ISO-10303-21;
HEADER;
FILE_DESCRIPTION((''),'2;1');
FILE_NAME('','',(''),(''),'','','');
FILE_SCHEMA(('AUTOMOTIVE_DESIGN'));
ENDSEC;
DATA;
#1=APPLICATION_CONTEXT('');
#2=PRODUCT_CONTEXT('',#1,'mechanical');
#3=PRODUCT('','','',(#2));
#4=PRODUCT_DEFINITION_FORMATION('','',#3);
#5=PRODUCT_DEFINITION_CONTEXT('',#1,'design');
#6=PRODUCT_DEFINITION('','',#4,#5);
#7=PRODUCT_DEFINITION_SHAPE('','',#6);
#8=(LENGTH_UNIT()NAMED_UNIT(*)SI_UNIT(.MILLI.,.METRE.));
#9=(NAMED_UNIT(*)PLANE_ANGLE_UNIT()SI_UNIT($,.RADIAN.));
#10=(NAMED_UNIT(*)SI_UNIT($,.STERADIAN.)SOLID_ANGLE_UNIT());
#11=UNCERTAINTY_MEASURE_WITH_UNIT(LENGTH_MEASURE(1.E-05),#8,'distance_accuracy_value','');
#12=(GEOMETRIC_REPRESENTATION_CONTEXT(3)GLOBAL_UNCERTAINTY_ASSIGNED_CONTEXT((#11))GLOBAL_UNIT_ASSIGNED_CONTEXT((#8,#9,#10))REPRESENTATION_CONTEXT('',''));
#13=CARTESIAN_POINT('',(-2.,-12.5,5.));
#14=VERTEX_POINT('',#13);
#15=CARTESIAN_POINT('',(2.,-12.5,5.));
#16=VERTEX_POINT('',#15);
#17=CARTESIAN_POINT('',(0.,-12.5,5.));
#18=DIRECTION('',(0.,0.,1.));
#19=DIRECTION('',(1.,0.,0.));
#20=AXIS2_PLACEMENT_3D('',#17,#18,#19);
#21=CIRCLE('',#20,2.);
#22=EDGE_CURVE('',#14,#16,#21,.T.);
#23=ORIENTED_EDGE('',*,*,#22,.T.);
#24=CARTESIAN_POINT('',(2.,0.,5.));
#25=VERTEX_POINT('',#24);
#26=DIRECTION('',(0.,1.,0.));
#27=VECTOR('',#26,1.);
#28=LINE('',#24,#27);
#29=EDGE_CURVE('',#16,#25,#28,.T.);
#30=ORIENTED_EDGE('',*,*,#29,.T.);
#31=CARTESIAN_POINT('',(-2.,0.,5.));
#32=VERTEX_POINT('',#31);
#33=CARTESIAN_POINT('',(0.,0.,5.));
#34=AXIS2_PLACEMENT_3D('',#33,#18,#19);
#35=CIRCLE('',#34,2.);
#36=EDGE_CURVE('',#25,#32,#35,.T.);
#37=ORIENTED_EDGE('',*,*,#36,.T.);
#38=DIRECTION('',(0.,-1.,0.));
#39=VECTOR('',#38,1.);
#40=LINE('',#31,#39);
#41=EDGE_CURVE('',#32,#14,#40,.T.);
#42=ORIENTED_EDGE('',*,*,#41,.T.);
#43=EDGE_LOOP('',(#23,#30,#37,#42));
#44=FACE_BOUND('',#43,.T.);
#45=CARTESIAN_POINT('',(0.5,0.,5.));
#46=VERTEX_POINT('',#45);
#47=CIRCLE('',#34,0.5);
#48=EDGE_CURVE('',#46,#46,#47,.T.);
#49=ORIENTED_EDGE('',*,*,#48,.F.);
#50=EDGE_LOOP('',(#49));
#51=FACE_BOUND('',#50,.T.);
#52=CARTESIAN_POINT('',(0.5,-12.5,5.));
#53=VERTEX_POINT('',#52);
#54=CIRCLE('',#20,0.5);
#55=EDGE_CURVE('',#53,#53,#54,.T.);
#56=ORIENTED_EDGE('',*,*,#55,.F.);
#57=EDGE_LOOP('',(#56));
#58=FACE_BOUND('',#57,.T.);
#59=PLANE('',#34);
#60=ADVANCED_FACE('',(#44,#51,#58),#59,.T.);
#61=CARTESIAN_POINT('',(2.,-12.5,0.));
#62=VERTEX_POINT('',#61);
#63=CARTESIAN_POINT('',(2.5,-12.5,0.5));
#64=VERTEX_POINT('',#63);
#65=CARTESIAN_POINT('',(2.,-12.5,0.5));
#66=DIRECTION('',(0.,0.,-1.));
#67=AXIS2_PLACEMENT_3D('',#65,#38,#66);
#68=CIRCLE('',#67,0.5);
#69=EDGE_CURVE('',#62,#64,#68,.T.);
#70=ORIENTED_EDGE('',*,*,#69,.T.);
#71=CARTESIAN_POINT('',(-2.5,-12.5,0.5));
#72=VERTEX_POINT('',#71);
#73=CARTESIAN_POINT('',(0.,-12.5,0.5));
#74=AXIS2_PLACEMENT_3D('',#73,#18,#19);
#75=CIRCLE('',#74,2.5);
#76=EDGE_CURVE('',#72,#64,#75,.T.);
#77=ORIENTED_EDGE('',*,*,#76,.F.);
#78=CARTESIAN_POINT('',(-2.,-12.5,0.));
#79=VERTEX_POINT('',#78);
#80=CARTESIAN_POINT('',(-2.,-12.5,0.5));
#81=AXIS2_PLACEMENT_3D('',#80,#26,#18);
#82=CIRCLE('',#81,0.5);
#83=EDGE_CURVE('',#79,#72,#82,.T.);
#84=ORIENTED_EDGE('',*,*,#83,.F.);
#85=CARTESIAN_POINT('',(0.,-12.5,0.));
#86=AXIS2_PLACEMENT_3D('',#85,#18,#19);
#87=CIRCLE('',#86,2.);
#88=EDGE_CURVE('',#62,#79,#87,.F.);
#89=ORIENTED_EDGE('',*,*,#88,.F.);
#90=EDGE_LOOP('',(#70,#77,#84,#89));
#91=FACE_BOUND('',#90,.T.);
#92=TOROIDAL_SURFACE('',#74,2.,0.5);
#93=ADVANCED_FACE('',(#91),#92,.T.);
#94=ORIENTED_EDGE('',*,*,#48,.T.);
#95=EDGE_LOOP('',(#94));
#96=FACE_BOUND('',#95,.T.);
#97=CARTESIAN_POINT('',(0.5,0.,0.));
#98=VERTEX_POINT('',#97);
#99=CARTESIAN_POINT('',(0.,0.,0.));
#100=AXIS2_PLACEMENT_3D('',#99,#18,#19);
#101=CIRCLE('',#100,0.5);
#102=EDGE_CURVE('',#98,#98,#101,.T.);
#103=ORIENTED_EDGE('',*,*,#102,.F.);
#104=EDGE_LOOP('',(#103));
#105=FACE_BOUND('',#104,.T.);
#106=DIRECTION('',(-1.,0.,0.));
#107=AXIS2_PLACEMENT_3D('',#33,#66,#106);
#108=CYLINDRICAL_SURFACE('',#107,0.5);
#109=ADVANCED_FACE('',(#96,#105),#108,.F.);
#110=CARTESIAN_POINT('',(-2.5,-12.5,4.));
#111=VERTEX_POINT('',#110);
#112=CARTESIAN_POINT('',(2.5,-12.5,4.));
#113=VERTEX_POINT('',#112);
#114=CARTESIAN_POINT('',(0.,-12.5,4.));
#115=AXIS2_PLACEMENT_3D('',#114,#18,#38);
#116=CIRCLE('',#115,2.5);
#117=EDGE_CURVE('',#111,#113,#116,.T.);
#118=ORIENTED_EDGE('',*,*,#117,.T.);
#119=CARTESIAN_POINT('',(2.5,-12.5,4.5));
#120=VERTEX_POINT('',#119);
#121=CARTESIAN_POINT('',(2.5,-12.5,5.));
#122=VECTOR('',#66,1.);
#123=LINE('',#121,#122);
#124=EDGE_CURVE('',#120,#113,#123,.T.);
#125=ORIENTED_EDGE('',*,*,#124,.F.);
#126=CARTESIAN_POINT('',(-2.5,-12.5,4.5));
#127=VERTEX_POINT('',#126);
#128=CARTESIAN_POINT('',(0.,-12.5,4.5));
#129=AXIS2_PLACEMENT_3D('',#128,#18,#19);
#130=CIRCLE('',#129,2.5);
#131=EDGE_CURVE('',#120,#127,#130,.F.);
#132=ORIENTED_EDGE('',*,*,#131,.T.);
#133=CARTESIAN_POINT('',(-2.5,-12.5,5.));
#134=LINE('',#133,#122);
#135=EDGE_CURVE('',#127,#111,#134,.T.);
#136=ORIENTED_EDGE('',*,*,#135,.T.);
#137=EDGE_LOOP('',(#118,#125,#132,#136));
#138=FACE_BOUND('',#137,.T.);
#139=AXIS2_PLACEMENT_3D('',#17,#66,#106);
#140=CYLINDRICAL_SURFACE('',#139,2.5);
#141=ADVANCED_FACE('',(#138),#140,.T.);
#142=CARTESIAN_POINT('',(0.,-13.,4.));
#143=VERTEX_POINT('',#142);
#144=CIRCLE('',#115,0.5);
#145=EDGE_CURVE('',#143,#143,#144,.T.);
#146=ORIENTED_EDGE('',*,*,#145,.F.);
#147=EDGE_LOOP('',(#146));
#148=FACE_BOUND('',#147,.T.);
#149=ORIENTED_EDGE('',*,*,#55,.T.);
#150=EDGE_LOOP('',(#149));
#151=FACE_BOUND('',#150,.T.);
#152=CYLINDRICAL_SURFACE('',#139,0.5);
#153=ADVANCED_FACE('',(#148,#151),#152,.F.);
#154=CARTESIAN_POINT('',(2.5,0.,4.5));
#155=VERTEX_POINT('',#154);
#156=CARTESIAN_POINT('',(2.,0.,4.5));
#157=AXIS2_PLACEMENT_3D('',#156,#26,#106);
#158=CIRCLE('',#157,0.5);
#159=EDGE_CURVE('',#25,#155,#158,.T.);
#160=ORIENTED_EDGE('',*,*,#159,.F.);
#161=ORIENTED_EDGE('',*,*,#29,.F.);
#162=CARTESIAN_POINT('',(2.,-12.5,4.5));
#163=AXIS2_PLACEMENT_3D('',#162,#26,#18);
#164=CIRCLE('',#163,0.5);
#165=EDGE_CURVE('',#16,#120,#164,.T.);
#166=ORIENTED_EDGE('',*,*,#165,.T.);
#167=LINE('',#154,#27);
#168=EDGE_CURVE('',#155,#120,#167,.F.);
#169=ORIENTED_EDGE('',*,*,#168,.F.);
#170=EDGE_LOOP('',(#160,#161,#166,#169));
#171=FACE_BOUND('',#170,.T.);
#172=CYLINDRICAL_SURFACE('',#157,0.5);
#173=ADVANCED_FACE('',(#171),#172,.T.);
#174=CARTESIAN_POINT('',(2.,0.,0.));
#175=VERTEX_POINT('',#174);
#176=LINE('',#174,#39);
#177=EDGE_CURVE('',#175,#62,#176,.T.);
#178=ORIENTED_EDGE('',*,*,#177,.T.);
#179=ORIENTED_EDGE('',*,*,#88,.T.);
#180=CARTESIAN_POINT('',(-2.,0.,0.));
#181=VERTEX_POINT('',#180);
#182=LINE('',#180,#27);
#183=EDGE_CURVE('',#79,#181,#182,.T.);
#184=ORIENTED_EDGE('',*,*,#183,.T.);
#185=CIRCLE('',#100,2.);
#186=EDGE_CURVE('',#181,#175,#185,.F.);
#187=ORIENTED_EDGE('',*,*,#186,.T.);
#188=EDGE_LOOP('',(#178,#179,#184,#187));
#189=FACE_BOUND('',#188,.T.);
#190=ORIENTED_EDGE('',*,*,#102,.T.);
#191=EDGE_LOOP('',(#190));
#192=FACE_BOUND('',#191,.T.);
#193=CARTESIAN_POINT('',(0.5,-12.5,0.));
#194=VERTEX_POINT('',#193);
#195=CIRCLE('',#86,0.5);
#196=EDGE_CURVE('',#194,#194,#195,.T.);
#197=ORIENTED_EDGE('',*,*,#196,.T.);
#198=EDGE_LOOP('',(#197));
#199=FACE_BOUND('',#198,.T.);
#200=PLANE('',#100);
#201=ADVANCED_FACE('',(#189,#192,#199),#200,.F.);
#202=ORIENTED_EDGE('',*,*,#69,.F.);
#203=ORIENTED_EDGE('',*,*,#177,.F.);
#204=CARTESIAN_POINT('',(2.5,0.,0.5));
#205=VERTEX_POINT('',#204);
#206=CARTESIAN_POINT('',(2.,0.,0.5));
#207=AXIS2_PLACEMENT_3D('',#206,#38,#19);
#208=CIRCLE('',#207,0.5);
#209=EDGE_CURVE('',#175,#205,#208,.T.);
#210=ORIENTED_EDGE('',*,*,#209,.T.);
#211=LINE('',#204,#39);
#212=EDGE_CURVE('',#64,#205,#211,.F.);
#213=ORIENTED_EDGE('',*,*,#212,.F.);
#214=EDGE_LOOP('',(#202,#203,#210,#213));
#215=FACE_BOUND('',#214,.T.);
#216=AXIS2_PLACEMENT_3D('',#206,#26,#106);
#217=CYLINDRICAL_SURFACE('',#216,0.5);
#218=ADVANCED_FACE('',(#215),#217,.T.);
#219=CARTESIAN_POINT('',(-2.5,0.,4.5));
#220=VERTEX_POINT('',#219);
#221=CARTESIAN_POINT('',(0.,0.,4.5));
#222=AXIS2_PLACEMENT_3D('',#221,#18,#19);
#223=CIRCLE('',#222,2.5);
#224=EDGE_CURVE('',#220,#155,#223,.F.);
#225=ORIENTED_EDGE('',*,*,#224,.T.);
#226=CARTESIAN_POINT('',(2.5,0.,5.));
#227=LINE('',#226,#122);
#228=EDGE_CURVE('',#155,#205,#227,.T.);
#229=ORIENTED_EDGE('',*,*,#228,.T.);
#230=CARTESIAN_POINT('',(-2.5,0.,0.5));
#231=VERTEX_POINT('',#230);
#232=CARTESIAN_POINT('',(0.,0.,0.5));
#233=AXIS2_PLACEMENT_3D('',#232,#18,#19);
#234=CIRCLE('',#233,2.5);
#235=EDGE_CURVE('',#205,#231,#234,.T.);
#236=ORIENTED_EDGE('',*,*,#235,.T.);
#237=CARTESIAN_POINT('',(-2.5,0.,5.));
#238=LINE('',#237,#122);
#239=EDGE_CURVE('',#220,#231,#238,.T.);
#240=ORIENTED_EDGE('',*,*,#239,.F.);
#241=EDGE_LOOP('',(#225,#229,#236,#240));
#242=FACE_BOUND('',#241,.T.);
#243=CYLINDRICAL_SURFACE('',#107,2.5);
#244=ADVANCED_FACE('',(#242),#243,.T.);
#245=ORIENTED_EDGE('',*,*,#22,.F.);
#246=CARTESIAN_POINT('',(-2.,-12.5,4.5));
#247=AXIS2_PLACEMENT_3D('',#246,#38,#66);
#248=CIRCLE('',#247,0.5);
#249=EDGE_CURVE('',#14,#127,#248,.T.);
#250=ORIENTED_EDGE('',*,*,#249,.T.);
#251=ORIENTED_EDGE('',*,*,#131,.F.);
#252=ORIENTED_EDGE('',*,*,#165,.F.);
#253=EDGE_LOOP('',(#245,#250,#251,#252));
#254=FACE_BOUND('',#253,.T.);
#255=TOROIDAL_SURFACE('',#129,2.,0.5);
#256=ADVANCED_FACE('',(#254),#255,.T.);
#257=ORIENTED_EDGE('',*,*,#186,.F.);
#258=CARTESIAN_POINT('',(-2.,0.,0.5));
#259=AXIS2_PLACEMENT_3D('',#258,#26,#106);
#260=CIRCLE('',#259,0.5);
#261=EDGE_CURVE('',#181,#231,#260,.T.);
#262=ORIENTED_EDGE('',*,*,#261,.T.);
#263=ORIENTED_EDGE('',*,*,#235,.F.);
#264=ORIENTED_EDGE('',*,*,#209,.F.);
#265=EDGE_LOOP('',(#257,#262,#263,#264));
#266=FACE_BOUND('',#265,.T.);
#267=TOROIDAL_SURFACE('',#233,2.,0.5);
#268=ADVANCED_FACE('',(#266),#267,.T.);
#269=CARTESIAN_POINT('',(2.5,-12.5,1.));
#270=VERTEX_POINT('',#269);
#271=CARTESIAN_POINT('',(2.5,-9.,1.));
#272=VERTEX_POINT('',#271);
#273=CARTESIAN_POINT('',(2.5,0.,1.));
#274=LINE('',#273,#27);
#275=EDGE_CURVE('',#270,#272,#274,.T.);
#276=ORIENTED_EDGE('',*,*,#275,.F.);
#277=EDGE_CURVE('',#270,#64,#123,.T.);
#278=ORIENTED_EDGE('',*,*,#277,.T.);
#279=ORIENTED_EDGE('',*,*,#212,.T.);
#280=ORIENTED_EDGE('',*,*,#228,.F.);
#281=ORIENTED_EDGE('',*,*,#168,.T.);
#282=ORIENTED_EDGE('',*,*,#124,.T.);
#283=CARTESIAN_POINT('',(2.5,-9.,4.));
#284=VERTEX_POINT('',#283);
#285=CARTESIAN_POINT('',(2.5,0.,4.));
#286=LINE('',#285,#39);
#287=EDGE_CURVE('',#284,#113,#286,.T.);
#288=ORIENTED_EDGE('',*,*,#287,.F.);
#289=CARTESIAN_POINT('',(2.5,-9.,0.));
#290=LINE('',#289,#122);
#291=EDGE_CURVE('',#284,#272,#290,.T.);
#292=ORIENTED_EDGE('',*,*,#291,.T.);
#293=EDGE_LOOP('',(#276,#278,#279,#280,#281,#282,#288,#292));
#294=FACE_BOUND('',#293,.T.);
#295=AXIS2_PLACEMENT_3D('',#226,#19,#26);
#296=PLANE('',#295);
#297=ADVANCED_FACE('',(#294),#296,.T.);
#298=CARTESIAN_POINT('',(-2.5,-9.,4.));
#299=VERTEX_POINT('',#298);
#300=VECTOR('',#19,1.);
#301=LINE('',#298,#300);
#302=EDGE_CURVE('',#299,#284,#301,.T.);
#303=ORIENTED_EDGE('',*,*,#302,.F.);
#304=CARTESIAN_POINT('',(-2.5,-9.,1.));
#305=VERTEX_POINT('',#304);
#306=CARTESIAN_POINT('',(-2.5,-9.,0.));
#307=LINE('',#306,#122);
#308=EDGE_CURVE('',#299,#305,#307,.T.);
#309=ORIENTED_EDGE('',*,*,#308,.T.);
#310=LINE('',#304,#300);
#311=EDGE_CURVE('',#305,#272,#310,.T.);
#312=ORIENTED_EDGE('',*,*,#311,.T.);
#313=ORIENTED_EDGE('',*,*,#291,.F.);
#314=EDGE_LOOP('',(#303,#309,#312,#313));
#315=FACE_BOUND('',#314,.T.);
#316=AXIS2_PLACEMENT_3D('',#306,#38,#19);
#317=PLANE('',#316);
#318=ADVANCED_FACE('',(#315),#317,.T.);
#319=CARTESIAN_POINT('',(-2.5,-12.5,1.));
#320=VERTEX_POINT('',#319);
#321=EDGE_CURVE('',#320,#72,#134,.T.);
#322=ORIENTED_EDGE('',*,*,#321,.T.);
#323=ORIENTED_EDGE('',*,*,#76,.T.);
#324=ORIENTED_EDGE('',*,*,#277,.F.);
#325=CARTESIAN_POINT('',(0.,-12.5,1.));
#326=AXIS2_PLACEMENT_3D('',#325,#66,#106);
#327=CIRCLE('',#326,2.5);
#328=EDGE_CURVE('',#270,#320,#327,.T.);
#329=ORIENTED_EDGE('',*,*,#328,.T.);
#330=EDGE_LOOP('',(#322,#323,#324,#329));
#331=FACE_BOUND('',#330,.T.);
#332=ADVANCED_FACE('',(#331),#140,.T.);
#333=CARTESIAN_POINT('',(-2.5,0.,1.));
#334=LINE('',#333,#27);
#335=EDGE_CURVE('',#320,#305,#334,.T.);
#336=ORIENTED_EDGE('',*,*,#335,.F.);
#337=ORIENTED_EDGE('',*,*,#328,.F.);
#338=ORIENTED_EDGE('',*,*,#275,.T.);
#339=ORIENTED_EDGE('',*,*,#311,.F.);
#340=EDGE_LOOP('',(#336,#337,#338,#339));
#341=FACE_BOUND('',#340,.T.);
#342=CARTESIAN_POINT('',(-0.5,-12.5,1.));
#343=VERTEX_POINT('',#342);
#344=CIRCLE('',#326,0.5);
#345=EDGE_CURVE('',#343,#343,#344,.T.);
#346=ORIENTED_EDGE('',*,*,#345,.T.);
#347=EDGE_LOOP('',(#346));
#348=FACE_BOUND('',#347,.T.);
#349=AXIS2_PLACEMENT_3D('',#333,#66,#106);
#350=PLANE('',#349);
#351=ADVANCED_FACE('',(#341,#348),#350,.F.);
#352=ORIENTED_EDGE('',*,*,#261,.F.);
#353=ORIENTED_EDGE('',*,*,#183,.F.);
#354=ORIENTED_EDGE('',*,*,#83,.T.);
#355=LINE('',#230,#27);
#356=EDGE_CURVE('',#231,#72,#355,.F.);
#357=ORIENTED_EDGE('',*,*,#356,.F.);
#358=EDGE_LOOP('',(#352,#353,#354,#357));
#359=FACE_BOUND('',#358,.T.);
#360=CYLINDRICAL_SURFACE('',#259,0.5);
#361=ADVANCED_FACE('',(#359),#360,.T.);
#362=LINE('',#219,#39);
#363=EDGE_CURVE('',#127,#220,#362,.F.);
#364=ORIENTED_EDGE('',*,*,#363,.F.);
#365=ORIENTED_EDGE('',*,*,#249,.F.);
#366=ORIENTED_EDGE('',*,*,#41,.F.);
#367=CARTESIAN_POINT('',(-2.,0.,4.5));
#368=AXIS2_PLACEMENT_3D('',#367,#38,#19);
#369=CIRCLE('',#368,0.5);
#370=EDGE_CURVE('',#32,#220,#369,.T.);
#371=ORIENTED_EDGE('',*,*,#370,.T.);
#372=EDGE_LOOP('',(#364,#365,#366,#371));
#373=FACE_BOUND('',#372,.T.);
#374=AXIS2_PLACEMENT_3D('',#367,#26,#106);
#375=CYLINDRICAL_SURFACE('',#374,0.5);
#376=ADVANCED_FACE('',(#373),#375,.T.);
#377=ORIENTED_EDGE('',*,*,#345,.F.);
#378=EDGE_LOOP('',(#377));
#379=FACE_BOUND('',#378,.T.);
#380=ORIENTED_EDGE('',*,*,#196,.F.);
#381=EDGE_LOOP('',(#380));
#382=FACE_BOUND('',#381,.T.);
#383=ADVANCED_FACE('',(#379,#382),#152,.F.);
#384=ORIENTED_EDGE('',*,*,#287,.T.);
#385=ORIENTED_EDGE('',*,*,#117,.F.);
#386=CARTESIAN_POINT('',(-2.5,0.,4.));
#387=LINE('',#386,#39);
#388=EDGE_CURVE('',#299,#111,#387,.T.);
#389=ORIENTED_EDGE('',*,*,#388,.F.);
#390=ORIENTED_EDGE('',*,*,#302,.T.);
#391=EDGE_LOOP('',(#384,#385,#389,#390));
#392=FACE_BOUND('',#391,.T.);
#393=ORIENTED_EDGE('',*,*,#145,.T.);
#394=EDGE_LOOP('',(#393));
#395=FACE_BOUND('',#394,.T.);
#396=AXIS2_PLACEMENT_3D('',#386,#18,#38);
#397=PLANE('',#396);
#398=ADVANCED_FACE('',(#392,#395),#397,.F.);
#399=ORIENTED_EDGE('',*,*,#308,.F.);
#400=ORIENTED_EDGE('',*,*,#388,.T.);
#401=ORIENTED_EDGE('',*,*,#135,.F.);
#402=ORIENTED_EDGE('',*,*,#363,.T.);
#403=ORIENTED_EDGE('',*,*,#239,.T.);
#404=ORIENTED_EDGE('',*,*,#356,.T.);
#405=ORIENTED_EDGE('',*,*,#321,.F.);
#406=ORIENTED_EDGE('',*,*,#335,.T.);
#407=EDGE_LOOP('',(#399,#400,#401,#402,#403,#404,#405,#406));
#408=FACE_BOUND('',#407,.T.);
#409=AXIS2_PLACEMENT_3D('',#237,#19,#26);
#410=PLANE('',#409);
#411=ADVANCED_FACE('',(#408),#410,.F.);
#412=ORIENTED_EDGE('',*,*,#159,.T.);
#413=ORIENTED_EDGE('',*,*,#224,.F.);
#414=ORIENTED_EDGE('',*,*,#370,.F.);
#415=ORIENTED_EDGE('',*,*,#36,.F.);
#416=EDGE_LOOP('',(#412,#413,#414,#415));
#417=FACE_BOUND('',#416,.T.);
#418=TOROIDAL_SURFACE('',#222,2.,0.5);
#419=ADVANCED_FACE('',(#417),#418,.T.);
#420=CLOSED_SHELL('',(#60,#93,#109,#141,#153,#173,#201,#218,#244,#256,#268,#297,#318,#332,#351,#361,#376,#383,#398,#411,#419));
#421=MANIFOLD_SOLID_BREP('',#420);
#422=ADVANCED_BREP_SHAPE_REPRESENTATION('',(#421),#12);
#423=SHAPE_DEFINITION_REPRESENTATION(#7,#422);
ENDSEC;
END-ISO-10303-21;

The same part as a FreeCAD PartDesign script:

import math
import FreeCAD as App
import Part
import Sketcher
from FreeCAD import Vector


def edges_at(feature, points):
    """Names of the edges that pass closest to the given points."""
    edges = feature.Shape.Edges
    near = lambda p: min(range(len(edges)), key=lambda i: edges[i].distToShape(Part.Vertex(*p))[0])
    return sorted({f"Edge{near(p) + 1}" for p in points})

doc = App.newDocument("Part")
body = doc.addObject("PartDesign::Body", "Body")

sketch1 = body.newObject("Sketcher::SketchObject", "Sketch")
sketch1.AttachmentSupport = (doc.getObject("XY_Plane"), [""])
sketch1.MapMode = "FlatFace"
sketch1.addGeometry(Part.LineSegment(Vector(-2.5, 0, 0), Vector(-2.5, -12.5, 0)), False)
sketch1.addGeometry(Part.ArcOfCircle(Part.Circle(Vector(0, -12.5, 0), Vector(0, 0, 1), 2.5), math.radians(180), math.radians(360)), False)
sketch1.addGeometry(Part.LineSegment(Vector(2.5, -12.5, 0), Vector(2.5, 0, 0)), False)
sketch1.addGeometry(Part.ArcOfCircle(Part.Circle(Vector(0, 0, 0), Vector(0, 0, 1), 2.5), math.radians(0), math.radians(180)), False)
sketch1.addGeometry(Part.Circle(Vector(0, -12.5, 0), Vector(0, 0, 1), 0.5), False)
sketch1.addGeometry(Part.Circle(Vector(0, 0, 0), Vector(0, 0, 1), 0.5), False)
sketch1.addConstraint(Sketcher.Constraint("Tangent", 0, 2, 1, 1))
sketch1.addConstraint(Sketcher.Constraint("Tangent", 1, 2, 2, 1))
sketch1.addConstraint(Sketcher.Constraint("Tangent", 2, 2, 3, 1))
sketch1.addConstraint(Sketcher.Constraint("Tangent", 3, 2, 0, 1))
sketch1.addConstraint(Sketcher.Constraint("Vertical", 0))
sketch1.addConstraint(Sketcher.Constraint("Vertical", 2))
sketch1.addConstraint(Sketcher.Constraint("Coincident", 3, 3, -1, 1))
sketch1.addConstraint(Sketcher.Constraint("Coincident", 5, 3, -1, 1))
sketch1.addConstraint(Sketcher.Constraint("Coincident", 4, 3, 1, 3))
sketch1.addConstraint(Sketcher.Constraint("Equal", 4, 5))
sketch1.addConstraint(Sketcher.Constraint("Diameter", 4, 1.0))
sketch1.addConstraint(Sketcher.Constraint("Radius", 1, 2.5))
sketch1.addConstraint(Sketcher.Constraint("DistanceY", 0, 2, 0, 1, 12.5))
pad1 = body.newObject("PartDesign::Pad", "Pad")
pad1.Profile = sketch1
pad1.Length = 5

sketch2 = body.newObject("Sketcher::SketchObject", "Sketch001")
sketch2.AttachmentSupport = (doc.getObject("YZ_Plane"), [""])
sketch2.MapMode = "FlatFace"
sketch2.AttachmentOffset = App.Placement(Vector(0, 0, 2.5), App.Rotation())
sketch2.addGeometry(Part.LineSegment(Vector(-9, 4, 0), Vector(-15.621183, 4, 0)), False)
sketch2.addGeometry(Part.LineSegment(Vector(-15.621183, 4, 0), Vector(-15.621183, 1, 0)), False)
sketch2.addGeometry(Part.LineSegment(Vector(-15.621183, 1, 0), Vector(-9, 1, 0)), False)
sketch2.addGeometry(Part.LineSegment(Vector(-9, 1, 0), Vector(-9, 4, 0)), False)
sketch2.addConstraint(Sketcher.Constraint("Coincident", 0, 2, 1, 1))
sketch2.addConstraint(Sketcher.Constraint("Coincident", 1, 2, 2, 1))
sketch2.addConstraint(Sketcher.Constraint("Coincident", 2, 2, 3, 1))
sketch2.addConstraint(Sketcher.Constraint("Coincident", 3, 2, 0, 1))
sketch2.addConstraint(Sketcher.Constraint("Horizontal", 0))
sketch2.addConstraint(Sketcher.Constraint("Vertical", 1))
sketch2.addConstraint(Sketcher.Constraint("Horizontal", 2))
sketch2.addConstraint(Sketcher.Constraint("Vertical", 3))
sketch2.addConstraint(Sketcher.Constraint("DistanceY", 1, 2, 1, 1, 3.0))
sketch2.addConstraint(Sketcher.Constraint("DistanceY", -1, 1, 0, 2, 4.0))
sketch2.addConstraint(Sketcher.Constraint("DistanceX", 2, 2, -1, 1, 9.0))
sketch2.addConstraint(Sketcher.Constraint("DistanceX", 0, 2, 0, 1, 6.621183))
pocket1 = body.newObject("PartDesign::Pocket", "Pocket")
pocket1.Profile = sketch2
pocket1.Length = 5
doc.recompute()

fillet = body.newObject("PartDesign::Fillet", "Fillet")
fillet.Base = (pocket1, edges_at(pocket1, [
    (-2.5, -6.25, 5),
    (0, -15, 5),
    (2.5, -6.25, 5),
    (0, 2.5, 5),
]))
fillet.Radius = 0.5
doc.recompute()

fillet2 = body.newObject("PartDesign::Fillet", "Fillet001")
fillet2.Base = (fillet, edges_at(fillet, [
    (-2.5, -6.25, 0),
    (0, 2.5, 0),
    (2.5, -6.25, 0),
    (0, -15, 0),
]))
fillet2.Radius = 0.5

doc.recompute()
